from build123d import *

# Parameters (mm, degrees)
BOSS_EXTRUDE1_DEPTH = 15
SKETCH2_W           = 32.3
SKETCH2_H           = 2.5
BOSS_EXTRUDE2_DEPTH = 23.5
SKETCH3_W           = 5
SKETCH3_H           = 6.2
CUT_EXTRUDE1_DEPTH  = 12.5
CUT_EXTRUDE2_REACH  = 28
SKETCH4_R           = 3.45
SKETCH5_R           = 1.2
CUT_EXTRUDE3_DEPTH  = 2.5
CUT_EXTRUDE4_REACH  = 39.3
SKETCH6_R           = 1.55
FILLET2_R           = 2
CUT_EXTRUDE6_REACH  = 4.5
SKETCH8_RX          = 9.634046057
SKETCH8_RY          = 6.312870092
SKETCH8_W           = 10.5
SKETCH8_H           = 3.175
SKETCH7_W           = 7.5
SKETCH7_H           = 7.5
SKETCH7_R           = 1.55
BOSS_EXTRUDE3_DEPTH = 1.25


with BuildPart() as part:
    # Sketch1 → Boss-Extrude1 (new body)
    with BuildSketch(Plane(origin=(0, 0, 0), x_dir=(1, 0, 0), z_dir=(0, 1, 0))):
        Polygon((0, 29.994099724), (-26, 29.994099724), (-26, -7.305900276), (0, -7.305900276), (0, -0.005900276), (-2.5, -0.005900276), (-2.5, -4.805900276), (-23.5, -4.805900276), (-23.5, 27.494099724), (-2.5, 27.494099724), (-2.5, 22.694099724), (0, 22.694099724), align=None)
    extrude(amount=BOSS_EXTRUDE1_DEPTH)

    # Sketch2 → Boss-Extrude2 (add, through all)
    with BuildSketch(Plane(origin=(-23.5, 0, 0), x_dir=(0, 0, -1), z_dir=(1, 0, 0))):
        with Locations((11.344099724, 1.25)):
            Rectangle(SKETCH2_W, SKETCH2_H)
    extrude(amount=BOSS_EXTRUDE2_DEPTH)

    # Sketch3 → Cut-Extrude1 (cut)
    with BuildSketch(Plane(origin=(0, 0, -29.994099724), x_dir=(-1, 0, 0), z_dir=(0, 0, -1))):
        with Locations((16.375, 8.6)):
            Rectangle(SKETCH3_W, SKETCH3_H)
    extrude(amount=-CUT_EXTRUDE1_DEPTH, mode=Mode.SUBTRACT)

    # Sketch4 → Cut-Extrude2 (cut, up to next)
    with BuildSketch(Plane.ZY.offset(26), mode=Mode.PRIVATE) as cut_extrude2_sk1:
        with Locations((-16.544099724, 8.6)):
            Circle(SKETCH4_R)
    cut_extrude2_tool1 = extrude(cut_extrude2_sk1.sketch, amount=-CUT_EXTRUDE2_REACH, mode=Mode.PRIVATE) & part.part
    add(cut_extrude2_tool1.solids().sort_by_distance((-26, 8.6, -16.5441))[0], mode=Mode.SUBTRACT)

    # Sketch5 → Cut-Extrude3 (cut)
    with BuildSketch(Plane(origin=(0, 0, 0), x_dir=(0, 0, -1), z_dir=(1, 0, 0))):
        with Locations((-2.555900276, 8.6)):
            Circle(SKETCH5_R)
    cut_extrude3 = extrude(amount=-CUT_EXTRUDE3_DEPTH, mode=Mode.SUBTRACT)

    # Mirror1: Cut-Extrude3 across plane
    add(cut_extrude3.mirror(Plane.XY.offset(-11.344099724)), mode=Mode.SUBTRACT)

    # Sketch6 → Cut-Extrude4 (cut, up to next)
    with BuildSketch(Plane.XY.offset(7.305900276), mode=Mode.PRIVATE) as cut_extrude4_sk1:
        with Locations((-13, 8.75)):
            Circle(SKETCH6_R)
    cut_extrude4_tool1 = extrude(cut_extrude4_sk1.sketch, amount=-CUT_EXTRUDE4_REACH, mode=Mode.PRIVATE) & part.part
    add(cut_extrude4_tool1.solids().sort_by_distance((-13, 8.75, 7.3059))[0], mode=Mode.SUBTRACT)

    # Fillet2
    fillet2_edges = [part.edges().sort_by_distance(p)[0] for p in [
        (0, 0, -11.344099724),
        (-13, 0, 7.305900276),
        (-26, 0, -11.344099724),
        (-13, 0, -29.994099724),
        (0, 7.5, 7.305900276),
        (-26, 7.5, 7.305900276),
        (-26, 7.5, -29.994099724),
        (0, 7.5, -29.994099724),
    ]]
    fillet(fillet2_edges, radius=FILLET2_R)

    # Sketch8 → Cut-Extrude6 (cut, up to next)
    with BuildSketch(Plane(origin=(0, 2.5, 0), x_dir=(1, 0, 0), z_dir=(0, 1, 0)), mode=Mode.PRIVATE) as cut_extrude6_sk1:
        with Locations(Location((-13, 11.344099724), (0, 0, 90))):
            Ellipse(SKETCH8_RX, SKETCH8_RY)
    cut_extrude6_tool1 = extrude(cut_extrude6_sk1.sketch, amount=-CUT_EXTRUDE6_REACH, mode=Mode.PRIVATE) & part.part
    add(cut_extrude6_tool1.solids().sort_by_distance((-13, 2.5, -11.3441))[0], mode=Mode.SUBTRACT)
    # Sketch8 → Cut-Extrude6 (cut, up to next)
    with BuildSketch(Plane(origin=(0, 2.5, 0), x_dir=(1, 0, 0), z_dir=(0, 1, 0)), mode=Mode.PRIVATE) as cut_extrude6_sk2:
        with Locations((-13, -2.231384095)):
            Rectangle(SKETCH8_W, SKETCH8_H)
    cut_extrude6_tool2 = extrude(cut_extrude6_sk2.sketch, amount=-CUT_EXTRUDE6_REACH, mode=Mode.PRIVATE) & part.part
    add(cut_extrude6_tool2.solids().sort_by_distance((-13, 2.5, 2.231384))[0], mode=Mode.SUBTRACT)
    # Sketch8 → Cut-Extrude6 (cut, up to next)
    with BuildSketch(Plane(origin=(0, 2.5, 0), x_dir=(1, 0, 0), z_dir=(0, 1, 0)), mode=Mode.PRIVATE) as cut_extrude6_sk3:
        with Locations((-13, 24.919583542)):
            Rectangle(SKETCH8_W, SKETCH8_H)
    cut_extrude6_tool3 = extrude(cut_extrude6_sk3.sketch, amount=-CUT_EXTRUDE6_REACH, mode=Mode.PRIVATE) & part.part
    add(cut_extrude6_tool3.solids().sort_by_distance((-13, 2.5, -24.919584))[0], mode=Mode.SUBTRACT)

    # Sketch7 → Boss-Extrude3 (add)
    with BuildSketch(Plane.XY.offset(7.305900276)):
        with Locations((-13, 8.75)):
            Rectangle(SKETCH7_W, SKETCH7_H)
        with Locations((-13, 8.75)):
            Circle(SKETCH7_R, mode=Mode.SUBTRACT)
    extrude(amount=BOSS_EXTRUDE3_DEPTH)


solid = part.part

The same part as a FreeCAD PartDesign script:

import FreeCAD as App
import Part
import Sketcher

V = App.Vector


def edges_at(feature, points):
    """Names of the edges that pass closest to the given points."""
    edges = feature.Shape.Edges
    near = lambda p: min(range(len(edges)), key=lambda i: edges[i].distToShape(Part.Vertex(*p))[0])
    return sorted({f"Edge{near(p) + 1}" for p in points})


def add_polygon(sketch, points):
    """Adds a closed chain of lines whose ends are joined by coincident constraints."""
    first, n = sketch.GeometryCount, len(points)
    for a, b in zip(points, points[1:] + points[:1]):
        sketch.addGeometry(Part.LineSegment(App.Vector(*a, 0), App.Vector(*b, 0)), False)
    for i in range(n):
        sketch.addConstraint(Sketcher.Constraint("Coincident", first + i, 2, first + (i + 1) % n, 1))

doc = App.newDocument("Part")
body = doc.addObject("PartDesign::Body", "Body")

sketch1 = body.newObject("Sketcher::SketchObject", "Sketch")
sketch1.AttachmentSupport = (doc.getObject("XZ_Plane"), [""])
sketch1.MapMode = "FlatFace"
add_polygon(sketch1, [(0, -30), (-26, -30), (-26, 7.3), (0, 7.3), (0, 0), (-2.5, 0), (-2.5, 4.8), (-23.5, 4.8), (-23.5, -27.5), (-2.5, -27.5), (-2.5, -22.7), (0, -22.7)])
sketch1.addConstraint([
    Sketcher.Constraint("Horizontal", 0),
    Sketcher.Constraint("Vertical", 1),
    Sketcher.Constraint("Horizontal", 2),
    Sketcher.Constraint("Vertical", 3),
    Sketcher.Constraint("Horizontal", 4),
    Sketcher.Constraint("Vertical", 5),
    Sketcher.Constraint("Horizontal", 6),
    Sketcher.Constraint("Vertical", 7),
    Sketcher.Constraint("Horizontal", 8),
    Sketcher.Constraint("Vertical", 9),
    Sketcher.Constraint("Horizontal", 10),
    Sketcher.Constraint("Vertical", 11),
    Sketcher.Constraint("PointOnObject", 2, 2, -2),
    Sketcher.Constraint("PointOnObject", 10, 2, -2),
    Sketcher.Constraint("Vertical", 5, 2, 8, 2),
    Sketcher.Constraint("Equal", 5, 9),
    Sketcher.Constraint("Equal", 3, 11),
    Sketcher.Constraint("DistanceX", 0, 2, 0, 1, 26.0),
    Sketcher.Constraint("DistanceX", 6, 2, 6, 1, 21.0),
    Sketcher.Constraint("DistanceX", 4, 2, 4, 1, 2.5),
    Sketcher.Constraint("DistanceY", 1, 1, 1, 2, 37.3),
    Sketcher.Constraint("DistanceY", 3, 2, 3, 1, 7.3),
    Sketcher.Constraint("DistanceY", 5, 1, 5, 2, 4.8),
    Sketcher.Constraint("DistanceY", 0, 2, -1, 1, 29.9941),
])
pad1 = body.newObject("PartDesign::Pad", "Pad")
pad1.Profile = sketch1
pad1.Length = 15
pad1.Reversed = True

sketch2 = body.newObject("Sketcher::SketchObject", "Sketch001")
sketch2.AttachmentSupport = (doc.getObject("YZ_Plane"), [""])
sketch2.MapMode = "FlatFace"
sketch2.AttachmentOffset = App.Placement(V(0, 0, -23.5), App.Rotation())
add_polygon(sketch2, [(2.5, 4.8), (0, 4.8), (0, -27.5), (2.5, -27.5)])
sketch2.addConstraint([
    Sketcher.Constraint("Horizontal", 0),
    Sketcher.Constraint("Vertical", 1),
    Sketcher.Constraint("Horizontal", 2),
    Sketcher.Constraint("Vertical", 3),
    Sketcher.Constraint("PointOnObject", 0, 2, -2),
    Sketcher.Constraint("DistanceX", 0, 2, 0, 1, 2.5),
    Sketcher.Constraint("DistanceY", 1, 2, 1, 1, 32.3),
    Sketcher.Constraint("DistanceY", -1, 1, 0, 2, 4.8059),
])
pad2 = body.newObject("PartDesign::Pad", "Pad001")
pad2.Profile = sketch2
pad2.Length = 23.5

sketch3 = body.newObject("Sketcher::SketchObject", "Sketch002")
sketch3.AttachmentSupport = (doc.getObject("XY_Plane"), [""])
sketch3.MapMode = "FlatFace"
sketch3.AttachmentOffset = App.Placement(V(0, 0, -29.9941), App.Rotation())
add_polygon(sketch3, [(-14, 12), (-14, 6), (-19, 6), (-19, 12)])
sketch3.addConstraint([
    Sketcher.Constraint("Vertical", 0),
    Sketcher.Constraint("Horizontal", 1),
    Sketcher.Constraint("Vertical", 2),
    Sketcher.Constraint("Horizontal", 3),
    Sketcher.Constraint("DistanceX", 1, 2, 1, 1, 5.0),
    Sketcher.Constraint("DistanceY", 0, 2, 0, 1, 6.2),
    Sketcher.Constraint("DistanceY", -1, 1, 0, 2, 5.5),
    Sketcher.Constraint("DistanceX", 0, 2, -1, 1, 13.875),
])
pocket1 = body.newObject("PartDesign::Pocket", "Pocket")
pocket1.Profile = sketch3
pocket1.Length = 12.5
pocket1.Reversed = True

sketch4 = body.newObject("Sketcher::SketchObject", "Sketch003")
sketch4.AttachmentSupport = (doc.getObject("YZ_Plane"), [""])
sketch4.MapMode = "FlatFace"
sketch4.AttachmentOffset = App.Placement(V(0, 0, -26), App.Rotation())
sketch4.addGeometry(Part.Circle(V(8.6, -16.5, 0), V(0, 0, 1), 3.5), False)
sketch4.addConstraint([
    Sketcher.Constraint("Diameter", 0, 6.9),
    Sketcher.Constraint("DistanceX", -1, 1, 0, 3, 8.6),
    Sketcher.Constraint("DistanceY", 0, 3, -1, 1, 16.5441),
])
pocket2 = body.newObject("PartDesign::Pocket", "Pocket001")
pocket2.Profile = sketch4
pocket2.Type = "UpToFirst"
pocket2.Reversed = True

sketch5 = body.newObject("Sketcher::SketchObject", "Sketch004")
sketch5.AttachmentSupport = (doc.getObject("YZ_Plane"), [""])
sketch5.MapMode = "FlatFace"
sketch5.addGeometry(Part.Circle(V(8.6, 2.6, 0), V(0, 0, 1), 1.2), False)
sketch5.addConstraint([
    Sketcher.Constraint("Diameter", 0, 2.4),
    Sketcher.Constraint("DistanceX", -1, 1, 0, 3, 8.6),
    Sketcher.Constraint("DistanceY", -1, 1, 0, 3, 2.5559),
])
pocket3 = body.newObject("PartDesign::Pocket", "Pocket002")
pocket3.Profile = sketch5
pocket3.Length = 2.5
doc.recompute()

datumplane = body.newObject("PartDesign::Plane", "DatumPlane")
datumplane.AttachmentSupport = (doc.getObject("XY_Plane"), [""])
datumplane.MapMode = "FlatFace"
datumplane.AttachmentOffset = App.Placement(V(0, 0, -11.3441), App.Rotation())
mirrored = body.newObject("PartDesign::Mirrored", "Mirrored")
mirrored.Originals = [pocket3]
mirrored.MirrorPlane = (datumplane, [""])
body.Tip = mirrored

sketch6 = body.newObject("Sketcher::SketchObject", "Sketch005")
sketch6.AttachmentSupport = (doc.getObject("XY_Plane"), [""])
sketch6.MapMode = "FlatFace"
sketch6.AttachmentOffset = App.Placement(V(0, 0, 7.3059), App.Rotation())
sketch6.addGeometry(Part.Circle(V(-13, 8.8, 0), V(0, 0, 1), 1.6), False)
sketch6.addConstraint([
    Sketcher.Constraint("Diameter", 0, 3.1),
    Sketcher.Constraint("DistanceX", 0, 3, -1, 1, 13.0),
    Sketcher.Constraint("DistanceY", -1, 1, 0, 3, 8.75),
])
pocket4 = body.newObject("PartDesign::Pocket", "Pocket003")
pocket4.Profile = sketch6
pocket4.Type = "UpToFirst"
doc.recompute()

fillet = body.newObject("PartDesign::Fillet", "Fillet")
fillet.Base = (pocket4, edges_at(pocket4, [
    (0, 0, -11.344),
    (-13, 0, 7.306),
    (-26, 0, -11.344),
    (-13, 0, -29.994),
    (0, 7.5, 7.306),
    (-26, 7.5, 7.306),
    (-26, 7.5, -29.994),
    (0, 7.5, -29.994),
]))
fillet.Radius = 2

sketch7 = body.newObject("Sketcher::SketchObject", "Sketch006")
sketch7.AttachmentSupport = (doc.getObject("XZ_Plane"), [""])
sketch7.MapMode = "FlatFace"
sketch7.AttachmentOffset = App.Placement(V(0, 0, -2.5), App.Rotation())
sketch7.addGeometry(Part.Ellipse(V(-13, -20.978146, 0), V(-6.68713, -11.3441, 0), V(-13, -11.3441, 0)), False)
sketch7.addConstraint(Sketcher.Constraint("Block", 0))
pocket5 = body.newObject("PartDesign::Pocket", "Pocket004")
pocket5.Profile = sketch7
pocket5.Type = "UpToFirst"
pocket5.Reversed = True

sketch8 = body.newObject("Sketcher::SketchObject", "Sketch007")
sketch8.AttachmentSupport = (doc.getObject("XZ_Plane"), [""])
sketch8.MapMode = "FlatFace"
sketch8.AttachmentOffset = App.Placement(V(0, 0, -2.5), App.Rotation())
add_polygon(sketch8, [(-18.2, 0.6), (-18.2, 3.8), (-7.8, 3.8), (-7.8, 0.6)])
sketch8.addConstraint([
    Sketcher.Constraint("Vertical", 0),
    Sketcher.Constraint("Horizontal", 1),
    Sketcher.Constraint("Vertical", 2),
    Sketcher.Constraint("Horizontal", 3),
    Sketcher.Constraint("DistanceX", 1, 1, 1, 2, 10.5),
    Sketcher.Constraint("DistanceY", 0, 1, 0, 2, 3.175),
    Sketcher.Constraint("DistanceX", 0, 2, -1, 1, 18.25),
    Sketcher.Constraint("DistanceY", -1, 1, 0, 2, 3.818884),
])
pocket6 = body.newObject("PartDesign::Pocket", "Pocket005")
pocket6.Profile = sketch8
pocket6.Type = "UpToFirst"
pocket6.Reversed = True

sketch9 = body.newObject("Sketcher::SketchObject", "Sketch008")
sketch9.AttachmentSupport = (doc.getObject("XZ_Plane"), [""])
sketch9.MapMode = "FlatFace"
sketch9.AttachmentOffset = App.Placement(V(0, 0, -2.5), App.Rotation())
add_polygon(sketch9, [(-18.2, -26.5), (-18.2, -23.3), (-7.8, -23.3), (-7.8, -26.5)])
sketch9.addConstraint([
    Sketcher.Constraint("Vertical", 0),
    Sketcher.Constraint("Horizontal", 1),
    Sketcher.Constraint("Vertical", 2),
    Sketcher.Constraint("Horizontal", 3),
    Sketcher.Constraint("DistanceX", 1, 1, 1, 2, 10.5),
    Sketcher.Constraint("DistanceY", 0, 1, 0, 2, 3.175),
    Sketcher.Constraint("DistanceX", 0, 2, -1, 1, 18.25),
    Sketcher.Constraint("DistanceY", 0, 2, -1, 1, 23.332084),
])
pocket7 = body.newObject("PartDesign::Pocket", "Pocket006")
pocket7.Profile = sketch9
pocket7.Type = "UpToFirst"
pocket7.Reversed = True

sketch10 = body.newObject("Sketcher::SketchObject", "Sketch009")
sketch10.AttachmentSupport = (doc.getObject("XY_Plane"), [""])
sketch10.MapMode = "FlatFace"
sketch10.AttachmentOffset = App.Placement(V(0, 0, 7.3059), App.Rotation())
add_polygon(sketch10, [(-16.8, 12.5), (-16.8, 5), (-9.2, 5), (-9.2, 12.5)])
sketch10.addGeometry(Part.Circle(V(-13, 8.8, 0), V(0, 0, 1), 1.6), False)
sketch10.addConstraint([
    Sketcher.Constraint("Vertical", 0),
    Sketcher.Constraint("Horizontal", 1),
    Sketcher.Constraint("Vertical", 2),
    Sketcher.Constraint("Horizontal", 3),
    Sketcher.Constraint("Equal", 3, 0),
    Sketcher.Constraint("Diameter", 4, 3.1),
    Sketcher.Constraint("DistanceX", 1, 1, 1, 2, 7.5),
    Sketcher.Constraint("DistanceX", 4, 3, -1, 1, 13.0),
    Sketcher.Constraint("DistanceY", -1, 1, 0, 2, 5.0),
    Sketcher.Constraint("DistanceY", -1, 1, 4, 3, 8.75),
    Sketcher.Constraint("DistanceX", 0, 2, -1, 1, 16.75),
])
pad3 = body.newObject("PartDesign::Pad", "Pad002")
pad3.Profile = sketch10
pad3.Length = 1.25

doc.recompute()
